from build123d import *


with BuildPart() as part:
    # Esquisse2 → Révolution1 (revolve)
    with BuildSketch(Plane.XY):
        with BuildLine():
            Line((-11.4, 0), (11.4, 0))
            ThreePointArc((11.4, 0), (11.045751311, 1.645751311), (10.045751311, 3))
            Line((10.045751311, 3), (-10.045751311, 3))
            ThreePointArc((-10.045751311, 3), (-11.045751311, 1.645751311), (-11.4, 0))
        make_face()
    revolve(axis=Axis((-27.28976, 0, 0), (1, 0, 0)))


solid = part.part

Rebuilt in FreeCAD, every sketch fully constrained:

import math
import FreeCAD as App
import Part
import Sketcher

V = App.Vector

doc = App.newDocument("Part")
body = doc.addObject("PartDesign::Body", "Body")

sketch1 = body.newObject("Sketcher::SketchObject", "Sketch")
sketch1.AttachmentSupport = (doc.getObject("XY_Plane"), [""])
sketch1.MapMode = "FlatFace"
sketch1.addGeometry(Part.LineSegment(V(-11.4, 0, 0), V(11.4, 0, 0)), False)
sketch1.addGeometry(Part.ArcOfCircle(Part.Circle(V(7.4, 0, 0), V(0, 0, 1), 4), math.radians(0), math.radians(48.590378)), False)
sketch1.addGeometry(Part.LineSegment(V(10.045751, 3, 0), V(-10.045751, 3, 0)), False)
sketch1.addGeometry(Part.ArcOfCircle(Part.Circle(V(-7.4, 0, 0), V(0, 0, 1), 4), math.radians(131.409622), math.radians(180)), False)
sketch1.addConstraint(Sketcher.Constraint("Coincident", 0, 2, 1, 1))
sketch1.addConstraint(Sketcher.Constraint("Coincident", 1, 2, 2, 1))
sketch1.addConstraint(Sketcher.Constraint("Coincident", 2, 2, 3, 1))
sketch1.addConstraint(Sketcher.Constraint("Coincident", 3, 2, 0, 1))
sketch1.addConstraint(Sketcher.Constraint("Horizontal", 0))
sketch1.addConstraint(Sketcher.Constraint("Horizontal", 2))
sketch1.addConstraint(Sketcher.Constraint("Equal", 1, 3))
sketch1.addConstraint(Sketcher.Constraint("Symmetric", 1, 3, 3, 3, -1, 1))
sketch1.addConstraint(Sketcher.Constraint("PointOnObject", 1, 3, -1))
sketch1.addConstraint(Sketcher.Constraint("PointOnObject", 0, 2, -1))
sketch1.addConstraint(Sketcher.Constraint("Radius", 1, 4.0))
sketch1.addConstraint(Sketcher.Constraint("DistanceX", 0, 1, 0, 2, 22.8))
sketch1.addConstraint(Sketcher.Constraint("DistanceY", -1, 1, 1, 2, 3.0))
revolution = body.newObject("PartDesign::Revolution", "Revolution")
revolution.Profile = sketch1
revolution.ReferenceAxis = (sketch1, ["H_Axis"])
revolution.Angle = 360

doc.recompute()
